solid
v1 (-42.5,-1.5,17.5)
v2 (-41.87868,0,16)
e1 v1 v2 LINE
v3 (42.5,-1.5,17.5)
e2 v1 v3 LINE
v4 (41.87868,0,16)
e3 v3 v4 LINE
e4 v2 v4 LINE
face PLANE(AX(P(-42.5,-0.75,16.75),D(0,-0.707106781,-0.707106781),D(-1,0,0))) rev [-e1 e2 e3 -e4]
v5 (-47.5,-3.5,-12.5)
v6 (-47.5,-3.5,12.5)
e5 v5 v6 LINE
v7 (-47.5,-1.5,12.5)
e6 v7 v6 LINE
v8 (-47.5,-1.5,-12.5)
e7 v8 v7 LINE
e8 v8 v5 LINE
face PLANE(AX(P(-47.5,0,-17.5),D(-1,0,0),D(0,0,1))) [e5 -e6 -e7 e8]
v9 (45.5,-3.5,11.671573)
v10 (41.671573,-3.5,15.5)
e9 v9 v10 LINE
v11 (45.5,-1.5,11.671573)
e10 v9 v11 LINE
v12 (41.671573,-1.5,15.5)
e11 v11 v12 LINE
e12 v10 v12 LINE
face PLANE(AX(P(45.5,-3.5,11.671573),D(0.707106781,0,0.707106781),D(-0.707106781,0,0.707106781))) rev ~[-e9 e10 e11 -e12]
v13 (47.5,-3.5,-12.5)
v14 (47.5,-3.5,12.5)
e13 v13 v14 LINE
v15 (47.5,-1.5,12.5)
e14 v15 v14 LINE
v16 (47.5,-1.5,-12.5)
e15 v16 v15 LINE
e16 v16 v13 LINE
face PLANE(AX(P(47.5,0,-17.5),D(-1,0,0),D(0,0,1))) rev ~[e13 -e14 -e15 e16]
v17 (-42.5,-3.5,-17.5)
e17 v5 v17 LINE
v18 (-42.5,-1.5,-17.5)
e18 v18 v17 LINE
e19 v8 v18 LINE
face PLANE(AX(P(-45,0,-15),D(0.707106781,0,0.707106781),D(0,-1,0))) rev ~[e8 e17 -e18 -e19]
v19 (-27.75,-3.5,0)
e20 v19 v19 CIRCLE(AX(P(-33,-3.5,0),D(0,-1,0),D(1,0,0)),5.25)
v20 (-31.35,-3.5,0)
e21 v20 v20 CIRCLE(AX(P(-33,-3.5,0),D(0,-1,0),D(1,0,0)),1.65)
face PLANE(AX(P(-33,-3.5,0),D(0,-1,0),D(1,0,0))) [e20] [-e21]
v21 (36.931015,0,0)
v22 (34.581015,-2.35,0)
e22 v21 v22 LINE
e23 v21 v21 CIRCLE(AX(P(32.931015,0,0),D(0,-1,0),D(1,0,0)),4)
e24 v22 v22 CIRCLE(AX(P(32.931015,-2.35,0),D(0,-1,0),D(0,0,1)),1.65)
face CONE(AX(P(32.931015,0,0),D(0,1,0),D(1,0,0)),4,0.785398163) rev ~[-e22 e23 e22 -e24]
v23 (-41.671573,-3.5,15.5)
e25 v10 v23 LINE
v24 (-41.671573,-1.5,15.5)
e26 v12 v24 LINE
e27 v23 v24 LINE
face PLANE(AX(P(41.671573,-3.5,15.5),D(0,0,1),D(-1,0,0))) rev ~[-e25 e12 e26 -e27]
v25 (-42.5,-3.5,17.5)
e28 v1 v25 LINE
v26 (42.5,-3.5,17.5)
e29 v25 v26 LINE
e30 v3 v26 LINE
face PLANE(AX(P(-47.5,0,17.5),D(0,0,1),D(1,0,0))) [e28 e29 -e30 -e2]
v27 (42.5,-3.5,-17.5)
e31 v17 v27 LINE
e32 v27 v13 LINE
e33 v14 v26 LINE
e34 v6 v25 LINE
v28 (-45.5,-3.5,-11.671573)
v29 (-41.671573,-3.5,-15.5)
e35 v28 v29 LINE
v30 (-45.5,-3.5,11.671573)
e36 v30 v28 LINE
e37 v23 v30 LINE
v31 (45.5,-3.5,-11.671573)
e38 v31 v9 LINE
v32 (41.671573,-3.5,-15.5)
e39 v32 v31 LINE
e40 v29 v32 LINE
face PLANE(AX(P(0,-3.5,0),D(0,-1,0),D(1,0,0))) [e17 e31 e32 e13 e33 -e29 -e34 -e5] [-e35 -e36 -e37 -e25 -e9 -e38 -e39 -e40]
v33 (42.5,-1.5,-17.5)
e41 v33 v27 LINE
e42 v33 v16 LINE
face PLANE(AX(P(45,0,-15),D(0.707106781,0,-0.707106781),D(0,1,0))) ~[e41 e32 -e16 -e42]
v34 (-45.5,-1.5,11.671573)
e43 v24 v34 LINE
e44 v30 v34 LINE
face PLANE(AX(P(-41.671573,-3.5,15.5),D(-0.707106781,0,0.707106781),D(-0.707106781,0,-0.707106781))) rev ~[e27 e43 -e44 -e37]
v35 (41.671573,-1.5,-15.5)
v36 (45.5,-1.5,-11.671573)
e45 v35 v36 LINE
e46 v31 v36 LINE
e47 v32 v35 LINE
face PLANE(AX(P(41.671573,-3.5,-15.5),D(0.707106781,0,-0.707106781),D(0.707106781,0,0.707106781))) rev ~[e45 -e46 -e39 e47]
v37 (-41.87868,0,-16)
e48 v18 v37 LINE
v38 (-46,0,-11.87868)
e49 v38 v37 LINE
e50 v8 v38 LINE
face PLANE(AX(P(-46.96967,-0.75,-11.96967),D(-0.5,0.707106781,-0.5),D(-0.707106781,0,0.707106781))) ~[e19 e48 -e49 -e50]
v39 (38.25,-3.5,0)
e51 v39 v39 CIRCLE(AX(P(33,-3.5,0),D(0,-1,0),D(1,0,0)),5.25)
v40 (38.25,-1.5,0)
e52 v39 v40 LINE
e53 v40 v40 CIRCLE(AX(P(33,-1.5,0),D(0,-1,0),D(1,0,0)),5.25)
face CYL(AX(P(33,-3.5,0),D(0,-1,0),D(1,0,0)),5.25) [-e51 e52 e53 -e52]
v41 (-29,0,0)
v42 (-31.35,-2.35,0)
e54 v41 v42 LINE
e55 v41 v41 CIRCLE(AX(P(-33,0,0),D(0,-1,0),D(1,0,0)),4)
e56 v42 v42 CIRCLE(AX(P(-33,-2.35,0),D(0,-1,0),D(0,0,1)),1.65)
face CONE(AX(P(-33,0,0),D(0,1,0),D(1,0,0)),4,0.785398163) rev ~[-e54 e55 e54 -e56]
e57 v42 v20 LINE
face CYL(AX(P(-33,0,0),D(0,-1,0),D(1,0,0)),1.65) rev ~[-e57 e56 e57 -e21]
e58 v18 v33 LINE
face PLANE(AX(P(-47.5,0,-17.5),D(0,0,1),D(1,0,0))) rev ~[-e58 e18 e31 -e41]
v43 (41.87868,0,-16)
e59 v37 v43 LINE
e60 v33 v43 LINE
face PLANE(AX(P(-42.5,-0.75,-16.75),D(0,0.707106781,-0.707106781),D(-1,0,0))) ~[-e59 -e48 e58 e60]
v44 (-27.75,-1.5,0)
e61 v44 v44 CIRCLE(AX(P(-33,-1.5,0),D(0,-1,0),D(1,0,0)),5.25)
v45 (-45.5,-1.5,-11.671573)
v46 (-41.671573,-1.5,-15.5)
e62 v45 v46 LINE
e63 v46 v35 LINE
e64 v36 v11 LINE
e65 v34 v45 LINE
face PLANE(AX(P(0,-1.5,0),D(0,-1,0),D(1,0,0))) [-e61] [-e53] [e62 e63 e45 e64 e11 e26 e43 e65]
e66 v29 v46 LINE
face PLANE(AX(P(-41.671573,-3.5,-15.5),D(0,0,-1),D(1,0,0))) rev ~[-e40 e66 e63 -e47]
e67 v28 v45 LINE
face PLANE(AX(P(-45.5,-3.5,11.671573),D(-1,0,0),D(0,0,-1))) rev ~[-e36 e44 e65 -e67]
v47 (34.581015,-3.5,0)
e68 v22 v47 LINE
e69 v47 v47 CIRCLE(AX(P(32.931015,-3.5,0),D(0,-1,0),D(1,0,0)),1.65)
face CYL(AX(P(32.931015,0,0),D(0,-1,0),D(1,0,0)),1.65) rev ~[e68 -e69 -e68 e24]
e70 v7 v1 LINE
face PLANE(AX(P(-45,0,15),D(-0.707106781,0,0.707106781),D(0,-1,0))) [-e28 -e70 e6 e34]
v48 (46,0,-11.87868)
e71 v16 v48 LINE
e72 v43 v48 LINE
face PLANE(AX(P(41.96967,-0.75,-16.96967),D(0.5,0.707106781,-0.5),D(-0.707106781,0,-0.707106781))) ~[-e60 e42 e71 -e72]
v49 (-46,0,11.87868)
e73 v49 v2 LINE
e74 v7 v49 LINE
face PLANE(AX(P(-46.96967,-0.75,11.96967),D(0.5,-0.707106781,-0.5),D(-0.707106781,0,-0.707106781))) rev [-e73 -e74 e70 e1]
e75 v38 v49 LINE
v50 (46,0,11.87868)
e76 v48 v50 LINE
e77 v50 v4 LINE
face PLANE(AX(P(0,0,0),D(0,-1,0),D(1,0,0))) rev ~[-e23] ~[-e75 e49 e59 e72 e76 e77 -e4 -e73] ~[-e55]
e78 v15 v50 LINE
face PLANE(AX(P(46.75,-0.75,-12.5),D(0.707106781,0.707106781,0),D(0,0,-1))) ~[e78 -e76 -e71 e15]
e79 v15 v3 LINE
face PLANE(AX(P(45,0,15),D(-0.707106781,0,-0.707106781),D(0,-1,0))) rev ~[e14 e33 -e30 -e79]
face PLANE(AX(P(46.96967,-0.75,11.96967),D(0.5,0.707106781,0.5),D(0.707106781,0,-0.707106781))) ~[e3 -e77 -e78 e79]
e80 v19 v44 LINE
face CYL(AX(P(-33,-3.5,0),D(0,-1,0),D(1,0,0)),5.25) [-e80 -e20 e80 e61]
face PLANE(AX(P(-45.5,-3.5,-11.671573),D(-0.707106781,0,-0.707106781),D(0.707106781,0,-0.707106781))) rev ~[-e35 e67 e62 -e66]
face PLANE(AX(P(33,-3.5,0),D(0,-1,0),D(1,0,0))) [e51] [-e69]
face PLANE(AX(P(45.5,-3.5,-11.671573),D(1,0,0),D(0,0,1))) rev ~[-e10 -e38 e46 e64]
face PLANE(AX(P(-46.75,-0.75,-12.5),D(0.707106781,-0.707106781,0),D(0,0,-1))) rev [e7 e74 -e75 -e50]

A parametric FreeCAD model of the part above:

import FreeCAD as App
import Part
import Sketcher
from FreeCAD import Vector


def edges_at(feature, points):
    """Names of the edges that pass closest to the given points."""
    edges = feature.Shape.Edges
    near = lambda p: min(range(len(edges)), key=lambda i: edges[i].distToShape(Part.Vertex(*p))[0])
    return sorted({f"Edge{near(p) + 1}" for p in points})


def add_polygon(sketch, points):
    """Adds a closed chain of lines whose ends are joined by coincident constraints."""
    first, n = sketch.GeometryCount, len(points)
    for a, b in zip(points, points[1:] + points[:1]):
        sketch.addGeometry(Part.LineSegment(App.Vector(*a, 0), App.Vector(*b, 0)), False)
    for i in range(n):
        sketch.addConstraint(Sketcher.Constraint("Coincident", first + i, 2, first + (i + 1) % n, 1))

doc = App.newDocument("Part")
body = doc.addObject("PartDesign::Body", "Body")

# Sketch on XZ plane
sketch1 = body.newObject("Sketcher::SketchObject", "Sketch")
sketch1.AttachmentSupport = (doc.getObject("XZ_Plane"), [""])
sketch1.MapMode = "FlatFace"
add_polygon(sketch1, [(-47.5, 17.5), (-47.5, -17.5), (47.5, -17.5), (47.5, 17.5)])  # lines 0-3
sketch1.addConstraint([
    Sketcher.Constraint("Vertical", 0),
    Sketcher.Constraint("Horizontal", 1),
    Sketcher.Constraint("Vertical", 2),
    Sketcher.Constraint("Horizontal", 3),
    Sketcher.Constraint("Symmetric", 0, 2, 2, 2, -1, 1),
    Sketcher.Constraint("DistanceX", 1, 1, 1, 2, 95.0),
    Sketcher.Constraint("DistanceY", 0, 2, 0, 1, 35.0),
])
pad1 = body.newObject("PartDesign::Pad", "Pad")
pad1.Profile = sketch1
pad1.Length = 3.5
doc.recompute()

chamfer = body.newObject("PartDesign::Chamfer", "Chamfer")
chamfer.Base = (pad1, edges_at(pad1, [
    (47.5, -1.75, -17.5),
    (47.5, -1.75, 17.5),
    (-47.5, -1.75, -17.5),
    (-47.5, -1.75, 17.5),
]))
chamfer.Size = 5

# Sketch on XZ plane
sketch2 = body.newObject("Sketcher::SketchObject", "Sketch001")
sketch2.AttachmentSupport = (doc.getObject("XZ_Plane"), [""])
sketch2.MapMode = "FlatFace"
sketch2.AttachmentOffset = App.Placement(Vector(0, 0, 3.5), App.Rotation())
add_polygon(sketch2, [(41.671573, 15.5), (-41.671573, 15.5), (-45.5, 11.671573), (-45.5, -11.671573), (-41.671573, -15.5), (41.671573, -15.5), (45.5, -11.671573), (45.5, 11.671573)])  # lines 0-7
sketch2.addConstraint([
    Sketcher.Constraint("Horizontal", 0),
    Sketcher.Constraint("Vertical", 2),
    Sketcher.Constraint("Horizontal", 4),
    Sketcher.Constraint("Vertical", 6),
    Sketcher.Constraint("Symmetric", 0, 2, 4, 2, -1, 1),
    Sketcher.Constraint("Symmetric", 1, 2, 5, 2, -1, 1),
    Sketcher.Constraint("Perpendicular", 1, 3),
    Sketcher.Constraint("Perpendicular", 5, 7),
    Sketcher.Constraint("Horizontal", 2, 2, 5, 2),
    Sketcher.Constraint("Horizontal", 1, 2, 6, 2),
    Sketcher.Constraint("Vertical", 0, 2, 3, 2),
    Sketcher.Constraint("DistanceY", 3, 2, 0, 2, 31.0),
    Sketcher.Constraint("DistanceX", 2, 2, 5, 2, 91.0),
    Sketcher.Constraint("DistanceX", 0, 2, 0, 1, 83.343146),
])
pocket1 = body.newObject("PartDesign::Pocket", "Pocket")
pocket1.Profile = sketch2
pocket1.Length = 2

# Sketch on XZ plane
sketch3 = body.newObject("Sketcher::SketchObject", "Sketch002")
sketch3.AttachmentSupport = (doc.getObject("XZ_Plane"), [""])
sketch3.MapMode = "FlatFace"
sketch3.AttachmentOffset = App.Placement(Vector(0, 0, 3.5), App.Rotation())
sketch3.addGeometry([
    Part.Circle(Vector(33, 0, 0), Vector(0, 0, 1), 5.25),
    Part.Circle(Vector(-33, 0, 0), Vector(0, 0, 1), 5.25),
], False)
sketch3.addConstraint([
    Sketcher.Constraint("Equal", 0, 1),
    Sketcher.Constraint("Symmetric", 0, 3, 1, 3, -1, 1),
    Sketcher.Constraint("PointOnObject", 0, 3, -1),
    Sketcher.Constraint("Diameter", 0, 10.5),
    Sketcher.Constraint("DistanceX", -1, 1, 0, 3, 33.0),
])
pad2 = body.newObject("PartDesign::Pad", "Pad001")
pad2.Profile = sketch3
pad2.Type = "UpToLast"
pad2.Reversed = True

# Sketch on XZ plane
sketch4 = body.newObject("Sketcher::SketchObject", "Sketch003")
sketch4.AttachmentSupport = (doc.getObject("XZ_Plane"), [""])
sketch4.MapMode = "FlatFace"
sketch4.addGeometry([
    Part.Circle(Vector(-33, 0, 0), Vector(0, 0, 1), 1.65),
    Part.Circle(Vector(32.931015, 0, 0), Vector(0, 0, 1), 1.65),
], False)
sketch4.addConstraint([
    Sketcher.Constraint("Equal", 0, 1),
    Sketcher.Constraint("PointOnObject", 0, 3, -1),
    Sketcher.Constraint("PointOnObject", 1, 3, -1),
    Sketcher.Constraint("Diameter", 0, 3.3),
    Sketcher.Constraint("DistanceX", 0, 3, -1, 1, 33.0),
    Sketcher.Constraint("DistanceX", -1, 1, 1, 3, 32.931015),
])
doc.recompute()
hole = body.newObject("PartDesign::Hole", "Hole")
hole.Profile = sketch4
hole.ThreadType = "None"
hole.Diameter = 3.3
hole.DepthType = "ThroughAll"
hole.HoleCutType = "Countersink"
hole.HoleCutDiameter = 8
hole.HoleCutCountersinkAngle = 90
hole.Reversed = True
doc.recompute()

chamfer2 = body.newObject("PartDesign::Chamfer", "Chamfer001")
chamfer2.Base = (hole, edges_at(hole, [
    (0, 0, -17.5),
    (45, 0, -15),
    (47.5, 0, 0),
    (45, 0, 15),
    (0, 0, 17.5),
    (-45, 0, 15),
    (-45, 0, -15),
    (-47.5, 0, 0),
]))
chamfer2.Size = 1.5

doc.recompute()
